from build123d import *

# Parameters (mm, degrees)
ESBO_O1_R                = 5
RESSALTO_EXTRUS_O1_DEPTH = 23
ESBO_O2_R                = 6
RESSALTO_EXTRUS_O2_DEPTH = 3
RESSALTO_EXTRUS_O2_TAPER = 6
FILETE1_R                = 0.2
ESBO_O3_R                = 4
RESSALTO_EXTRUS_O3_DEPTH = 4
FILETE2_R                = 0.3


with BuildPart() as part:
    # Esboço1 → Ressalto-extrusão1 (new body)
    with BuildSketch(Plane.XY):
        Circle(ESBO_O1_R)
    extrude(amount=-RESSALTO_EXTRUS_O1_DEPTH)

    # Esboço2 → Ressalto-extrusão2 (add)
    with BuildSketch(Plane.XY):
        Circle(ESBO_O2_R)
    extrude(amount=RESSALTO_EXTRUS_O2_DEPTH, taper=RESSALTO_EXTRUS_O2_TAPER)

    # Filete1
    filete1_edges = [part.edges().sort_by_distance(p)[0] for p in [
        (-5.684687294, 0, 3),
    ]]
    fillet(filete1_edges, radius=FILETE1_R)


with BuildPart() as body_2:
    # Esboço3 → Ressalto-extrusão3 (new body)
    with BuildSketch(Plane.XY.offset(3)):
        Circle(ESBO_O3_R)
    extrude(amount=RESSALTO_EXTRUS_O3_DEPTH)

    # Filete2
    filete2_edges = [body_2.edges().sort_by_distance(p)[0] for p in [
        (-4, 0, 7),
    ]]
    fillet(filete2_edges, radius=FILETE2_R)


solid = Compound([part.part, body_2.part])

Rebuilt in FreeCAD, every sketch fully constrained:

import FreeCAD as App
import Part
import Sketcher

V = App.Vector
Q = App.Units.Quantity


def edges_at(feature, points):
    """Names of the edges that pass closest to the given points."""
    edges = feature.Shape.Edges
    near = lambda p: min(range(len(edges)), key=lambda i: edges[i].distToShape(Part.Vertex(*p))[0])
    return sorted({f"Edge{near(p) + 1}" for p in points})

doc = App.newDocument("Part")
body = doc.addObject("PartDesign::Body", "Body")

# Sketch on XY plane
sketch1 = doc.addObject("Sketcher::SketchObject", "Sketch")
body.addObject(sketch1)
sketch1.AttachmentSupport = (doc.XY_Plane, [""])
sketch1.MapMode = "FlatFace"
sketch1.addGeometry(Part.Circle(V(0, 0, 0), V(0, 0, 1), 5), False)
sketch1.addConstraint(Sketcher.Constraint("Coincident", 0, 3, -1, 1))
sketch1.addConstraint(Sketcher.Constraint("Diameter", 0, Q("10 mm")))
pad1 = doc.addObject("PartDesign::Pad", "Pad")
body.addObject(pad1)
pad1.Profile = sketch1
pad1.Length = 23
pad1.Reversed = True

# Sketch on XY plane
sketch2 = doc.addObject("Sketcher::SketchObject", "Sketch001")
body.addObject(sketch2)
sketch2.AttachmentSupport = (doc.XY_Plane, [""])
sketch2.MapMode = "FlatFace"
sketch2.addGeometry(Part.Circle(V(0, 0, 0), V(0, 0, 1), 6), False)
sketch2.addConstraint(Sketcher.Constraint("Coincident", 0, 3, -1, 1))
sketch2.addConstraint(Sketcher.Constraint("Diameter", 0, Q("12 mm")))
pad2 = doc.addObject("PartDesign::Pad", "Pad001")
body.addObject(pad2)
pad2.Profile = sketch2
pad2.Length = 3
pad2.TaperAngle = -6
doc.recompute()

fillet = doc.addObject("PartDesign::Fillet", "Fillet")
body.addObject(fillet)
fillet.Base = (pad2, edges_at(pad2, [(-5.685, 0, 3)]))
fillet.Radius = 0.2
body2 = doc.addObject("PartDesign::Body", "Body001")

# Sketch on XY plane
sketch3 = doc.addObject("Sketcher::SketchObject", "Sketch002")
body2.addObject(sketch3)
sketch3.AttachmentSupport = (doc.getObject("XY_Plane001"), [""])
sketch3.MapMode = "FlatFace"
sketch3.AttachmentOffset = App.Placement(V(0, 0, 3), App.Rotation())
sketch3.addGeometry(Part.Circle(V(0, 0, 0), V(0, 0, 1), 4), False)
sketch3.addConstraint(Sketcher.Constraint("Coincident", 0, 3, -1, 1))
sketch3.addConstraint(Sketcher.Constraint("Diameter", 0, Q("8 mm")))
pad3 = doc.addObject("PartDesign::Pad", "Pad002")
body2.addObject(pad3)
pad3.Profile = sketch3
pad3.Length = 4
doc.recompute()

fillet2 = doc.addObject("PartDesign::Fillet", "Fillet001")
body2.addObject(fillet2)
fillet2.Base = (pad3, edges_at(pad3, [(-4, 0, 7)]))
fillet2.Radius = 0.3

doc.recompute()
